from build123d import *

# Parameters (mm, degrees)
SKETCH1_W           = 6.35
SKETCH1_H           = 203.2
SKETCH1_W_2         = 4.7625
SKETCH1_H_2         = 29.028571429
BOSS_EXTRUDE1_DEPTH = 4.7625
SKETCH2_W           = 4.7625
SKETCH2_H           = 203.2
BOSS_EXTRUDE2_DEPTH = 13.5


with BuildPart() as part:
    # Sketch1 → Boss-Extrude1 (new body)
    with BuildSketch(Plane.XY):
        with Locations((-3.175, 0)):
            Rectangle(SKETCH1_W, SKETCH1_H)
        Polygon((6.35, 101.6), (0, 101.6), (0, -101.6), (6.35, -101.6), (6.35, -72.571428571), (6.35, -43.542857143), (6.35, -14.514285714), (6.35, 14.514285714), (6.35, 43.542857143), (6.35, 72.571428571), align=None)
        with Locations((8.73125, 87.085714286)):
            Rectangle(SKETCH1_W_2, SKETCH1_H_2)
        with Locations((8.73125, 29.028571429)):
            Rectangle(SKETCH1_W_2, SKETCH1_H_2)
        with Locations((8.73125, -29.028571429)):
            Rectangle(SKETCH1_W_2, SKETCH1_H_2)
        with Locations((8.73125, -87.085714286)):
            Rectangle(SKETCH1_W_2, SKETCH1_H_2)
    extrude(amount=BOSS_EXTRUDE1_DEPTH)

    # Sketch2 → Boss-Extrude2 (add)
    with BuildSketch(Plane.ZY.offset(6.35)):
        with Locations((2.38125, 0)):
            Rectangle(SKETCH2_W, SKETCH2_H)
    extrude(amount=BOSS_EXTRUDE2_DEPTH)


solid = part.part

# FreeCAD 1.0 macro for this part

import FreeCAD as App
import Part
import Sketcher
Q = App.Units.Quantity


def add_polygon(sketch, points):
    """Adds a closed chain of lines whose ends are joined by coincident constraints."""
    first, n = sketch.GeometryCount, len(points)
    for a, b in zip(points, points[1:] + points[:1]):
        sketch.addGeometry(Part.LineSegment(App.Vector(*a, 0), App.Vector(*b, 0)), False)
    for i in range(n):
        sketch.addConstraint(Sketcher.Constraint("Coincident", first + i, 2, first + (i + 1) % n, 1))

doc = App.newDocument("Part")
params = doc.addObject("Spreadsheet::Sheet", "Params")
for row, (alias, value) in enumerate([
    ("sketch1_height", "8 in"),
    ("sketch1_width", "0.5 in"),
    ("sketch1_width2", "0.1875 in"),
    ("pad1_length", "0.1875 in"),
    ("sketch2_width", "8 in"),
    ("sketch2_height", "0.1875 in"),
    ("pad2_length", "13.5 mm"),
], start=1):
    params.set(f"A{row}", alias)
    params.set(f"B{row}", "=" + value)
    params.setAlias(f"B{row}", alias)

body = doc.addObject("PartDesign::Body", "Body")

sketch1 = body.newObject("Sketcher::SketchObject", "Sketch")
sketch1.AttachmentSupport = (doc.getObject("XY_Plane"), [""])
sketch1.MapMode = "FlatFace"
add_polygon(sketch1, [(-6.3, 101.6), (-6.3, -101.6), (6.3, -101.6), (11.1, -101.6), (11.1, -72.6), (6.3, -72.6), (6.3, -43.5), (11.1, -43.5), (11.1, -14.5), (6.3, -14.5), (6.3, 14.5), (11.1, 14.5), (11.1, 43.5), (6.3, 43.5), (6.3, 72.6), (11.1, 72.6), (11.1, 101.6), (6.3, 101.6)])
sketch1.addConstraint([
    Sketcher.Constraint("Vertical", 0),
    Sketcher.Constraint("Horizontal", 1),
    Sketcher.Constraint("Horizontal", 2),
    Sketcher.Constraint("Vertical", 3),
    Sketcher.Constraint("Horizontal", 4),
    Sketcher.Constraint("Vertical", 5),
    Sketcher.Constraint("Horizontal", 6),
    Sketcher.Constraint("Vertical", 7),
    Sketcher.Constraint("Horizontal", 8),
    Sketcher.Constraint("Vertical", 9),
    Sketcher.Constraint("Horizontal", 10),
    Sketcher.Constraint("Vertical", 11),
    Sketcher.Constraint("Horizontal", 12),
    Sketcher.Constraint("Vertical", 13),
    Sketcher.Constraint("Horizontal", 14),
    Sketcher.Constraint("Vertical", 15),
    Sketcher.Constraint("Horizontal", 16),
    Sketcher.Constraint("Horizontal", 17),
    Sketcher.Constraint("Symmetric", 0, 2, 16, 2, -1, 1),
    Sketcher.Constraint("Symmetric", 7, 2, 10, 2, -1),
    Sketcher.Constraint("Symmetric", 5, 2, 12, 2, -1),
    Sketcher.Constraint("Symmetric", 3, 2, 14, 2, -1),
    Sketcher.Constraint("Vertical", 1, 2, 4, 2),
    Sketcher.Constraint("Vertical", 3, 2, 6, 2),
    Sketcher.Constraint("Vertical", 5, 2, 8, 2),
    Sketcher.Constraint("Vertical", 13, 2, 16, 2),
    Sketcher.Constraint("Equal", 3, 5),
    Sketcher.Constraint("Equal", 5, 7),
    Sketcher.Constraint("Equal", 7, 9),
    Sketcher.Constraint("DistanceY", 0, 2, 0, 1, Q("8 in")),
    Sketcher.Constraint("DistanceX", 1, 1, 1, 2, Q("0.5 in")),
    Sketcher.Constraint("DistanceX", 2, 1, 2, 2, Q("0.1875 in")),
])
sketch1.setExpression("Constraints[47]", "Params.sketch1_height")
sketch1.setExpression("Constraints[48]", "Params.sketch1_width")
sketch1.setExpression("Constraints[49]", "Params.sketch1_width2")
pad1 = body.newObject("PartDesign::Pad", "Pad")
pad1.Profile = sketch1
pad1.setExpression("Length", "Params.pad1_length")

sketch2 = body.newObject("Sketcher::SketchObject", "Sketch001")
sketch2.AttachmentSupport = (doc.getObject("YZ_Plane"), [""])
sketch2.MapMode = "FlatFace"
sketch2.AttachmentOffset = App.Placement(App.Vector(0, 0, -0.25 * 25.4), App.Rotation())
add_polygon(sketch2, [(101.6, 0), (-101.6, 0), (-101.6, 4.8), (101.6, 4.8)])
sketch2.addConstraint([
    Sketcher.Constraint("Horizontal", 0),
    Sketcher.Constraint("Vertical", 1),
    Sketcher.Constraint("Horizontal", 2),
    Sketcher.Constraint("Vertical", 3),
    Sketcher.Constraint("Symmetric", 0, 2, 3, 2, -1, 1),
    Sketcher.Constraint("DistanceX", 0, 2, 0, 1, Q("8 in")),
    Sketcher.Constraint("DistanceY", 1, 1, 1, 2, Q("0.1875 in")),
])
sketch2.setExpression("Constraints[9]", "Params.sketch2_width")
sketch2.setExpression("Constraints[10]", "Params.sketch2_height")
pad2 = body.newObject("PartDesign::Pad", "Pad001")
pad2.Profile = sketch2
pad2.setExpression("Length", "Params.pad2_length")
pad2.Reversed = True

doc.recompute()
